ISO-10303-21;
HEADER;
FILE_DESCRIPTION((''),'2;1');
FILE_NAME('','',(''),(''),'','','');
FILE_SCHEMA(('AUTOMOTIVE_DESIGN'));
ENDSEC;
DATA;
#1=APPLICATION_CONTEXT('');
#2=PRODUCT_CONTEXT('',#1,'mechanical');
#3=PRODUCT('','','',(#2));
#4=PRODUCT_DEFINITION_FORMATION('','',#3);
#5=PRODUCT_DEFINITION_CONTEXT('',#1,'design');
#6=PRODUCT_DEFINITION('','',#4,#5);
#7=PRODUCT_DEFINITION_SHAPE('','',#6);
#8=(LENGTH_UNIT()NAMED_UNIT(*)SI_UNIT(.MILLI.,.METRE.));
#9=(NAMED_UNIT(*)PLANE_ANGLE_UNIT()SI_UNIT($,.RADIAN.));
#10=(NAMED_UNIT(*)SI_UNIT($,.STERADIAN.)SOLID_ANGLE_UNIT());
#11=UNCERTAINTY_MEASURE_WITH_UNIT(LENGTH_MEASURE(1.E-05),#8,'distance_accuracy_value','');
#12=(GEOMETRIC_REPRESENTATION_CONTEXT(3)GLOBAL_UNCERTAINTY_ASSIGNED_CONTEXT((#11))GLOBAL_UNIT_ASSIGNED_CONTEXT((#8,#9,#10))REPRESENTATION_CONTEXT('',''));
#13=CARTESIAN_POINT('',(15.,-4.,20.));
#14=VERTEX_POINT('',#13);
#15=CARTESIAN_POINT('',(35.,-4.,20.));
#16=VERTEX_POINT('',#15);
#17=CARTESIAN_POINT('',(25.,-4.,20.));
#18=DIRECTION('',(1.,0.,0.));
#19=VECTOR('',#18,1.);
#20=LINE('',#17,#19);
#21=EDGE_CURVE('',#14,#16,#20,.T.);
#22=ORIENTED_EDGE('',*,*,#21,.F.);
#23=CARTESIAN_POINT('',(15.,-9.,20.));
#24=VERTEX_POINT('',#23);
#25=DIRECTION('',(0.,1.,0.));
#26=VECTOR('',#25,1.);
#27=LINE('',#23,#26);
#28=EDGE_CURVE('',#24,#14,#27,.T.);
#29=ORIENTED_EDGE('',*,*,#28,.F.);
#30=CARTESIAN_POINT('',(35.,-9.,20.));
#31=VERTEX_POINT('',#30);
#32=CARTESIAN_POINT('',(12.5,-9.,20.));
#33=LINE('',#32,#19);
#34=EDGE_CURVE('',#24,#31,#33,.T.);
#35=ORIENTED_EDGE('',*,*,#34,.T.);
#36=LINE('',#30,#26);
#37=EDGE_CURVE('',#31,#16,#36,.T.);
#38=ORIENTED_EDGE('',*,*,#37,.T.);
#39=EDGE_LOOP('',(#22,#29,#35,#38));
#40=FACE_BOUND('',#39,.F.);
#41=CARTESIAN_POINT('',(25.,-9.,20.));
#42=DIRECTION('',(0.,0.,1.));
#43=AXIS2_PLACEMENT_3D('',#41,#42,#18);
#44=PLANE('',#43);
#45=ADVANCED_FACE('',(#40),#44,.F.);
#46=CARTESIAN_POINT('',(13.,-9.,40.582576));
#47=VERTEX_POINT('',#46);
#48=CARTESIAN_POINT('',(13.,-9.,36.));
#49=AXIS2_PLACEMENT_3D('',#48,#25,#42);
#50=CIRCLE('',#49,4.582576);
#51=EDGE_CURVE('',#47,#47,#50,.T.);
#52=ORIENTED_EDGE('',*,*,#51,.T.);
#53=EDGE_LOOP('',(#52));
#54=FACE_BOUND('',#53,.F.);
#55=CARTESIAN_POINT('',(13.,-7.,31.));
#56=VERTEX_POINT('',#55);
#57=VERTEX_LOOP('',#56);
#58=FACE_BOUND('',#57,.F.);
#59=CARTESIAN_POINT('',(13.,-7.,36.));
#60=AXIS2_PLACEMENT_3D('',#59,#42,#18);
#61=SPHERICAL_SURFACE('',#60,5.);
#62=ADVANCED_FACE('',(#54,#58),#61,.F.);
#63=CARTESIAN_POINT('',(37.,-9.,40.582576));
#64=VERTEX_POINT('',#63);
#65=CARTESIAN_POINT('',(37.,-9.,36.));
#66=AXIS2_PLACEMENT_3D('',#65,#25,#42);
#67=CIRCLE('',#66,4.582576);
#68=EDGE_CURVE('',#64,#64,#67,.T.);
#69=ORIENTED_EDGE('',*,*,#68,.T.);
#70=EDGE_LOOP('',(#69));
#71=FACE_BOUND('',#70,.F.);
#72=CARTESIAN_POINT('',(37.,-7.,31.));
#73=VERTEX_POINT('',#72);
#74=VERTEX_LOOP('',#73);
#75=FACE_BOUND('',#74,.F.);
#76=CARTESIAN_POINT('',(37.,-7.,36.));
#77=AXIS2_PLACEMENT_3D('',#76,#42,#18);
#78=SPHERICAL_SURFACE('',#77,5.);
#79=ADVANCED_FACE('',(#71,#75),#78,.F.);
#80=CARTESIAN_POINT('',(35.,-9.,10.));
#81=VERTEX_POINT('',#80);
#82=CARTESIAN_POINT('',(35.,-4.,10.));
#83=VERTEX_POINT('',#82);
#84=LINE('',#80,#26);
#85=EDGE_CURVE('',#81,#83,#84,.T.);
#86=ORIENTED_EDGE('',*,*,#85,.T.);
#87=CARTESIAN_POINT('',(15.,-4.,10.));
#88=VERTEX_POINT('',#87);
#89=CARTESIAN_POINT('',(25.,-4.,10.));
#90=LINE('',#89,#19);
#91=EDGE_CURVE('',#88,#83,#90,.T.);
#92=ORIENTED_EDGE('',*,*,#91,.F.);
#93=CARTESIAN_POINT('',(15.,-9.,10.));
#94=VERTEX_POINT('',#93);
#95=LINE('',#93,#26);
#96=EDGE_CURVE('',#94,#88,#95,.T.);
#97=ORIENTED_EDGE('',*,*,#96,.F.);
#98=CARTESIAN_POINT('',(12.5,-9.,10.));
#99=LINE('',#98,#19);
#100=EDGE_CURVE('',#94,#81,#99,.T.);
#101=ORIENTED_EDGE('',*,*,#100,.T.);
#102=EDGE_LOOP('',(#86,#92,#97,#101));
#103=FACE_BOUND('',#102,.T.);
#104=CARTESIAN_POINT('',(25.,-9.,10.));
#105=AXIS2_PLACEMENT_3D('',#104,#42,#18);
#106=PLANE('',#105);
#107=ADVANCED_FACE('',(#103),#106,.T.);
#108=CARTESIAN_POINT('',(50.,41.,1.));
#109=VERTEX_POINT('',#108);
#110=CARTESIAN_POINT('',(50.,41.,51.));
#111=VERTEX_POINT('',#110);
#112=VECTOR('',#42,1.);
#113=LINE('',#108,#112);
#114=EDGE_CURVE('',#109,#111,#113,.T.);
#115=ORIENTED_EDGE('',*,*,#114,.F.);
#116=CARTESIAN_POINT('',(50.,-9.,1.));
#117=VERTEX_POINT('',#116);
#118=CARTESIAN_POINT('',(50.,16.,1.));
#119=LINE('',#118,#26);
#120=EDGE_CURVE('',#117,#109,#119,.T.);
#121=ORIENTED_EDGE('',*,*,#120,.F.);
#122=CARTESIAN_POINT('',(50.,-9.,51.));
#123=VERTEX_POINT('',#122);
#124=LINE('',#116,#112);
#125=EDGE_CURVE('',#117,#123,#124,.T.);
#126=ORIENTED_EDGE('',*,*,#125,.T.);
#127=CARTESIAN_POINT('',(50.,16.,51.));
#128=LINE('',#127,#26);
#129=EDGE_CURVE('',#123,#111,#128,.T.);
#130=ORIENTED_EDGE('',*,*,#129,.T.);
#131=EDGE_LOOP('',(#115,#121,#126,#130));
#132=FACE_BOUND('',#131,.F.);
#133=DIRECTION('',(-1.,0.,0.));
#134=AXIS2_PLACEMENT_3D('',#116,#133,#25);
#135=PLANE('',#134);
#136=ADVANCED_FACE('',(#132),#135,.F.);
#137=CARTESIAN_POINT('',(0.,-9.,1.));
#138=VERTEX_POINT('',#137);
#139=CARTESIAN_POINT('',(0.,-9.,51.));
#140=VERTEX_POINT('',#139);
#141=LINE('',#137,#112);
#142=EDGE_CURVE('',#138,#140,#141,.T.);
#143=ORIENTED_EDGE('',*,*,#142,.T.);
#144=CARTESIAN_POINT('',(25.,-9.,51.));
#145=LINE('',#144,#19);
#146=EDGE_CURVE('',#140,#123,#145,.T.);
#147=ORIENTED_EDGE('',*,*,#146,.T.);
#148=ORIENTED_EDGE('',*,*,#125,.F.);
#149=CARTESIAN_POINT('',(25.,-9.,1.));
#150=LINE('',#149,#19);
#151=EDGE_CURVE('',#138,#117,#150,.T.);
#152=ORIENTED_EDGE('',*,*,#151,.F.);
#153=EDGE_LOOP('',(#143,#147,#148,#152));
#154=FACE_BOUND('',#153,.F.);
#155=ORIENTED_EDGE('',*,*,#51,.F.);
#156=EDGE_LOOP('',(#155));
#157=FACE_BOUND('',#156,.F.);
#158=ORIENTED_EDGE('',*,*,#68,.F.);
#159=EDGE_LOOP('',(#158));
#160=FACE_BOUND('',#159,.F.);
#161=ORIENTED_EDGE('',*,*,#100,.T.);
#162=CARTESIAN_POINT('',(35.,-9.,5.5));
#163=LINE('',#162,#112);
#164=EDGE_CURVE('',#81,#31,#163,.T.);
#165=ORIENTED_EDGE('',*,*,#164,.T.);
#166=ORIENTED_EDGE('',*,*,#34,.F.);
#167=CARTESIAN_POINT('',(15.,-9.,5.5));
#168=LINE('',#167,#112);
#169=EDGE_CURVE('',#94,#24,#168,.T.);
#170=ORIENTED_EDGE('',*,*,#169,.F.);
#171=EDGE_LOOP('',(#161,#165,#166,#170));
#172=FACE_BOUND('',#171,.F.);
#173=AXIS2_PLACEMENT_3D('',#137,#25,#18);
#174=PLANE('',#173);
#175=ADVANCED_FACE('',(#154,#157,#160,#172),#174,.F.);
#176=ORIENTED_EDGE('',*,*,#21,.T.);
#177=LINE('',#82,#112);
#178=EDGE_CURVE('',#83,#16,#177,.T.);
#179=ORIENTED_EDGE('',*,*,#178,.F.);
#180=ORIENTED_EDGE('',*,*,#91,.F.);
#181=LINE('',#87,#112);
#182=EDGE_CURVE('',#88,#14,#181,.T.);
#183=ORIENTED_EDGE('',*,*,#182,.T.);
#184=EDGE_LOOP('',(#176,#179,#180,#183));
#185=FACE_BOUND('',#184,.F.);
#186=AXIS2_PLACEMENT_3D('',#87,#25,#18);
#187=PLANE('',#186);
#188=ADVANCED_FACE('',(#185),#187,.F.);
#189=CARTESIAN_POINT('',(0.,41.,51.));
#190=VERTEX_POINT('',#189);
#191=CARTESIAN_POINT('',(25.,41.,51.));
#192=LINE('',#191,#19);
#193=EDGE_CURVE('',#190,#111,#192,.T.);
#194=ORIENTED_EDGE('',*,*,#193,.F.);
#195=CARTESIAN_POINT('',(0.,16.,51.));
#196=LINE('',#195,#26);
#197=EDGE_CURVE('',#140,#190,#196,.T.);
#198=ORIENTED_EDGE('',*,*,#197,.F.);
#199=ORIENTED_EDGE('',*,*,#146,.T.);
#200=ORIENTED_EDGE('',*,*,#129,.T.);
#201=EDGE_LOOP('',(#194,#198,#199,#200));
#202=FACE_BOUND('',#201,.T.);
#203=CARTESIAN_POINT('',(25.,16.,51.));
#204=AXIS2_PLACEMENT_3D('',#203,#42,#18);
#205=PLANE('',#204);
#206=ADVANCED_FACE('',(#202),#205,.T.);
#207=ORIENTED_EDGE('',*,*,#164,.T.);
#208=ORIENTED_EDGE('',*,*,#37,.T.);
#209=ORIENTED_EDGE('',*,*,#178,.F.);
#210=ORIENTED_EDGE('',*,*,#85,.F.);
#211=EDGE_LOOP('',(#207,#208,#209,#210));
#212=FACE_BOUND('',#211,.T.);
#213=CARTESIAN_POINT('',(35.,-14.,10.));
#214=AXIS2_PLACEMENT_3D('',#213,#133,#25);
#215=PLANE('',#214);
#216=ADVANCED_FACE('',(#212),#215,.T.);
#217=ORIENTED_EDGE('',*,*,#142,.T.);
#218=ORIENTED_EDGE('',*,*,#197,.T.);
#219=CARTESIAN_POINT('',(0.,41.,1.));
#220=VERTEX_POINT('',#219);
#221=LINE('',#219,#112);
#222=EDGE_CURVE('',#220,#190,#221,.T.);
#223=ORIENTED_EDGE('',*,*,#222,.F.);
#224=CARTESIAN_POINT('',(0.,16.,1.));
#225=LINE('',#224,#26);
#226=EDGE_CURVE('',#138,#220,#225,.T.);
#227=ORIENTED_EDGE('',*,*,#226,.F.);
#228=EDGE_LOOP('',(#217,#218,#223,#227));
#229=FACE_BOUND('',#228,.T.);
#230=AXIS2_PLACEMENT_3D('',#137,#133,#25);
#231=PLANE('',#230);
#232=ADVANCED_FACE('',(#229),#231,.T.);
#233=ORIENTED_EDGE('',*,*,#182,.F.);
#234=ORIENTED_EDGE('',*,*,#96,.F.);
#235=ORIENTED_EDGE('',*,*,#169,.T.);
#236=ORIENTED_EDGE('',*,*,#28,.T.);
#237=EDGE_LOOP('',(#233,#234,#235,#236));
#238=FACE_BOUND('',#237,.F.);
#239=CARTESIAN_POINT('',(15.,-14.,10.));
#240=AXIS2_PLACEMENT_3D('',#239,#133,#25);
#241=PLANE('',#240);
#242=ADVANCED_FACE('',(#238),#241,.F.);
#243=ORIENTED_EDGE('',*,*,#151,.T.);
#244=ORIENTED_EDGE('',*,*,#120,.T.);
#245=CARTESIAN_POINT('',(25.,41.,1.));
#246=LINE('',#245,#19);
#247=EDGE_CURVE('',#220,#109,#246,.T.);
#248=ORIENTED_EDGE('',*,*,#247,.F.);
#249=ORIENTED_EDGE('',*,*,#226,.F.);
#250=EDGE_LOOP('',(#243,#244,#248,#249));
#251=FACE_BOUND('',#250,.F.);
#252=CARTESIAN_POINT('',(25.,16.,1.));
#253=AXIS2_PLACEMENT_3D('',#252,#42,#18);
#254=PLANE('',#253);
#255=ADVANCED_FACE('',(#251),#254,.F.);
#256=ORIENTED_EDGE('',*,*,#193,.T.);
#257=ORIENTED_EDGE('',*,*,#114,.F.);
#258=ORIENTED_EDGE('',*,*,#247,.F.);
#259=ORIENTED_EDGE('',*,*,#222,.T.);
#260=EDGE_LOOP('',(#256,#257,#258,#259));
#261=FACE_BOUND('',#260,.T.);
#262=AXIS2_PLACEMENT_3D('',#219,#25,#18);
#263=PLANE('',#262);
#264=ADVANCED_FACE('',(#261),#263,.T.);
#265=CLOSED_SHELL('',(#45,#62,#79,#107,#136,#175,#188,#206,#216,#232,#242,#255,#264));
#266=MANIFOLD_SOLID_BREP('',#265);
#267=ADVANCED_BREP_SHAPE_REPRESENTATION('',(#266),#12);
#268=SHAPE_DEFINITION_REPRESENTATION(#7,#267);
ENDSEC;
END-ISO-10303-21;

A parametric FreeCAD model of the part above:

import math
import FreeCAD as App
import Part
import Sketcher
from FreeCAD import Vector
Q = App.Units.Quantity


def add_polygon(sketch, points):
    """Adds a closed chain of lines whose ends are joined by coincident constraints."""
    first, n = sketch.GeometryCount, len(points)
    for a, b in zip(points, points[1:] + points[:1]):
        sketch.addGeometry(Part.LineSegment(App.Vector(*a, 0), App.Vector(*b, 0)), False)
    for i in range(n):
        sketch.addConstraint(Sketcher.Constraint("Coincident", first + i, 2, first + (i + 1) % n, 1))

doc = App.newDocument("Part")
body = doc.addObject("PartDesign::Body", "Body")

# Sketch on XY plane
sketch1 = body.newObject("Sketcher::SketchObject", "Sketch")
sketch1.AttachmentSupport = (doc.getObject("XY_Plane"), [""])
sketch1.MapMode = "FlatFace"
sketch1.AttachmentOffset = App.Placement(Vector(0, 0, 9), App.Rotation())
add_polygon(sketch1, [(15, 5), (15, -5), (35, -5), (35, 5)])  # lines 0-3
sketch1.addConstraint(Sketcher.Constraint("Vertical", 0))
sketch1.addConstraint(Sketcher.Constraint("Horizontal", 1))
sketch1.addConstraint(Sketcher.Constraint("Vertical", 2))
sketch1.addConstraint(Sketcher.Constraint("Horizontal", 3))
sketch1.addConstraint(Sketcher.Constraint("DistanceX", 1, 1, 1, 2, Q("20 mm")))
sketch1.addConstraint(Sketcher.Constraint("DistanceY", 0, 2, 0, 1, Q("10 mm")))
sketch1.addConstraint(Sketcher.Constraint("DistanceX", -1, 1, 0, 2, Q("15 mm")))
sketch1.addConstraint(Sketcher.Constraint("DistanceY", 0, 2, -1, 1, Q("5 mm")))
pad1 = body.newObject("PartDesign::Pad", "Pad")
pad1.Profile = sketch1
pad1.Length = 10
body2 = doc.addObject("PartDesign::Body", "Body001")

# Sketch on XZ plane
sketch2 = body2.newObject("Sketcher::SketchObject", "Sketch001")
sketch2.AttachmentSupport = (doc.getObject("XZ_Plane001"), [""])
sketch2.MapMode = "FlatFace"
sketch2.AttachmentOffset = App.Placement(Vector(0, 0, -2), App.Rotation())
sketch2.addGeometry(Part.ArcOfCircle(Part.Circle(Vector(37, 35, 0), Vector(0, 0, 1), 5), math.radians(-90), math.radians(90)), False)
sketch2.addGeometry(Part.LineSegment(Vector(37, 40, 0), Vector(37, 30, 0)), False)
sketch2.addGeometry(Part.LineSegment(Vector(37, 30, 0), Vector(37, 40, 0)), True)  # axis
sketch2.addConstraint(Sketcher.Constraint("Coincident", 0, 1, 1, 2))
sketch2.addConstraint(Sketcher.Constraint("Coincident", 1, 1, 0, 2))
sketch2.addConstraint(Sketcher.Constraint("Vertical", 1))
sketch2.addConstraint(Sketcher.Constraint("Vertical", 2))
sketch2.addConstraint(Sketcher.Constraint("Coincident", 2, 1, 0, 1))
sketch2.addConstraint(Sketcher.Constraint("Equal", 1, 2))
sketch2.addConstraint(Sketcher.Constraint("Radius", 0, Q("5 mm")))
sketch2.addConstraint(Sketcher.Constraint("DistanceX", -1, 1, 0, 3, Q("37 mm")))
sketch2.addConstraint(Sketcher.Constraint("DistanceY", -1, 1, 0, 3, Q("35 mm")))
sketch2.addConstraint(Sketcher.Constraint("DistanceX", -1, 1, 0, 1, Q("37 mm")))
revolution = body2.newObject("PartDesign::Revolution", "Revolution")
revolution.Profile = sketch2
revolution.ReferenceAxis = (sketch2, ["Axis0"])
revolution.Angle = 360
body3 = doc.addObject("PartDesign::Body", "Body002")

# Sketch on XZ plane
sketch3 = body3.newObject("Sketcher::SketchObject", "Sketch002")
sketch3.AttachmentSupport = (doc.getObject("XZ_Plane002"), [""])
sketch3.MapMode = "FlatFace"
sketch3.AttachmentOffset = App.Placement(Vector(0, 0, -2), App.Rotation())
sketch3.addGeometry(Part.ArcOfCircle(Part.Circle(Vector(13, 35, 0), Vector(0, 0, 1), 5), math.radians(-90), math.radians(90)), False)
sketch3.addGeometry(Part.LineSegment(Vector(13, 40, 0), Vector(13, 30, 0)), False)
sketch3.addGeometry(Part.LineSegment(Vector(13, 30, 0), Vector(13, 40, 0)), True)  # axis
sketch3.addConstraint(Sketcher.Constraint("Coincident", 0, 1, 1, 2))
sketch3.addConstraint(Sketcher.Constraint("Coincident", 1, 1, 0, 2))
sketch3.addConstraint(Sketcher.Constraint("Vertical", 1))
sketch3.addConstraint(Sketcher.Constraint("Vertical", 2))
sketch3.addConstraint(Sketcher.Constraint("Coincident", 2, 1, 0, 1))
sketch3.addConstraint(Sketcher.Constraint("Equal", 1, 2))
sketch3.addConstraint(Sketcher.Constraint("Radius", 0, Q("5 mm")))
sketch3.addConstraint(Sketcher.Constraint("DistanceX", -1, 1, 0, 3, Q("13 mm")))
sketch3.addConstraint(Sketcher.Constraint("DistanceY", -1, 1, 0, 3, Q("35 mm")))
sketch3.addConstraint(Sketcher.Constraint("DistanceX", -1, 1, 0, 1, Q("13 mm")))
revolution2 = body3.newObject("PartDesign::Revolution", "Revolution001")
revolution2.Profile = sketch3
revolution2.ReferenceAxis = (sketch3, ["Axis0"])
revolution2.Angle = 360
body4 = doc.addObject("PartDesign::Body", "Body003")

# Sketch on XY plane
sketch4 = body4.newObject("Sketcher::SketchObject", "Sketch003")
sketch4.AttachmentSupport = (doc.getObject("XY_Plane003"), [""])
sketch4.MapMode = "FlatFace"
add_polygon(sketch4, [(0, 50), (0, 0), (50, 0), (50, 50)])  # lines 0-3
sketch4.addConstraint(Sketcher.Constraint("Vertical", 0))
sketch4.addConstraint(Sketcher.Constraint("Horizontal", 1))
sketch4.addConstraint(Sketcher.Constraint("Vertical", 2))
sketch4.addConstraint(Sketcher.Constraint("Horizontal", 3))
sketch4.addConstraint(Sketcher.Constraint("Coincident", 0, 2, -1, 1))
sketch4.addConstraint(Sketcher.Constraint("Equal", 3, 0))
sketch4.addConstraint(Sketcher.Constraint("DistanceX", 1, 1, 1, 2, Q("50 mm")))
pad2 = body4.newObject("PartDesign::Pad", "Pad001")
pad2.Profile = sketch4
pad2.Length = 50
doc.recompute()

boolean = body4.newObject("PartDesign::Boolean", "Boolean")
boolean.Type = "Cut"
boolean.addObjects([body3])
doc.recompute()

boolean2 = body4.newObject("PartDesign::Boolean", "Boolean001")
boolean2.Type = "Cut"
boolean2.addObjects([body2])
doc.recompute()

boolean3 = body4.newObject("PartDesign::Boolean", "Boolean002")
boolean3.Type = "Cut"
boolean3.addObjects([body])
body5 = doc.addObject("PartDesign::Body", "Body004")
doc.recompute()

body4.Placement = App.Placement(Vector(0, -9, 1), App.Rotation(Vector(0, 0, 1), 0))
boolean4 = body5.newObject("PartDesign::Boolean", "Boolean003")
boolean4.Type = "Fuse"
boolean4.addObjects([body4])

doc.recompute()
